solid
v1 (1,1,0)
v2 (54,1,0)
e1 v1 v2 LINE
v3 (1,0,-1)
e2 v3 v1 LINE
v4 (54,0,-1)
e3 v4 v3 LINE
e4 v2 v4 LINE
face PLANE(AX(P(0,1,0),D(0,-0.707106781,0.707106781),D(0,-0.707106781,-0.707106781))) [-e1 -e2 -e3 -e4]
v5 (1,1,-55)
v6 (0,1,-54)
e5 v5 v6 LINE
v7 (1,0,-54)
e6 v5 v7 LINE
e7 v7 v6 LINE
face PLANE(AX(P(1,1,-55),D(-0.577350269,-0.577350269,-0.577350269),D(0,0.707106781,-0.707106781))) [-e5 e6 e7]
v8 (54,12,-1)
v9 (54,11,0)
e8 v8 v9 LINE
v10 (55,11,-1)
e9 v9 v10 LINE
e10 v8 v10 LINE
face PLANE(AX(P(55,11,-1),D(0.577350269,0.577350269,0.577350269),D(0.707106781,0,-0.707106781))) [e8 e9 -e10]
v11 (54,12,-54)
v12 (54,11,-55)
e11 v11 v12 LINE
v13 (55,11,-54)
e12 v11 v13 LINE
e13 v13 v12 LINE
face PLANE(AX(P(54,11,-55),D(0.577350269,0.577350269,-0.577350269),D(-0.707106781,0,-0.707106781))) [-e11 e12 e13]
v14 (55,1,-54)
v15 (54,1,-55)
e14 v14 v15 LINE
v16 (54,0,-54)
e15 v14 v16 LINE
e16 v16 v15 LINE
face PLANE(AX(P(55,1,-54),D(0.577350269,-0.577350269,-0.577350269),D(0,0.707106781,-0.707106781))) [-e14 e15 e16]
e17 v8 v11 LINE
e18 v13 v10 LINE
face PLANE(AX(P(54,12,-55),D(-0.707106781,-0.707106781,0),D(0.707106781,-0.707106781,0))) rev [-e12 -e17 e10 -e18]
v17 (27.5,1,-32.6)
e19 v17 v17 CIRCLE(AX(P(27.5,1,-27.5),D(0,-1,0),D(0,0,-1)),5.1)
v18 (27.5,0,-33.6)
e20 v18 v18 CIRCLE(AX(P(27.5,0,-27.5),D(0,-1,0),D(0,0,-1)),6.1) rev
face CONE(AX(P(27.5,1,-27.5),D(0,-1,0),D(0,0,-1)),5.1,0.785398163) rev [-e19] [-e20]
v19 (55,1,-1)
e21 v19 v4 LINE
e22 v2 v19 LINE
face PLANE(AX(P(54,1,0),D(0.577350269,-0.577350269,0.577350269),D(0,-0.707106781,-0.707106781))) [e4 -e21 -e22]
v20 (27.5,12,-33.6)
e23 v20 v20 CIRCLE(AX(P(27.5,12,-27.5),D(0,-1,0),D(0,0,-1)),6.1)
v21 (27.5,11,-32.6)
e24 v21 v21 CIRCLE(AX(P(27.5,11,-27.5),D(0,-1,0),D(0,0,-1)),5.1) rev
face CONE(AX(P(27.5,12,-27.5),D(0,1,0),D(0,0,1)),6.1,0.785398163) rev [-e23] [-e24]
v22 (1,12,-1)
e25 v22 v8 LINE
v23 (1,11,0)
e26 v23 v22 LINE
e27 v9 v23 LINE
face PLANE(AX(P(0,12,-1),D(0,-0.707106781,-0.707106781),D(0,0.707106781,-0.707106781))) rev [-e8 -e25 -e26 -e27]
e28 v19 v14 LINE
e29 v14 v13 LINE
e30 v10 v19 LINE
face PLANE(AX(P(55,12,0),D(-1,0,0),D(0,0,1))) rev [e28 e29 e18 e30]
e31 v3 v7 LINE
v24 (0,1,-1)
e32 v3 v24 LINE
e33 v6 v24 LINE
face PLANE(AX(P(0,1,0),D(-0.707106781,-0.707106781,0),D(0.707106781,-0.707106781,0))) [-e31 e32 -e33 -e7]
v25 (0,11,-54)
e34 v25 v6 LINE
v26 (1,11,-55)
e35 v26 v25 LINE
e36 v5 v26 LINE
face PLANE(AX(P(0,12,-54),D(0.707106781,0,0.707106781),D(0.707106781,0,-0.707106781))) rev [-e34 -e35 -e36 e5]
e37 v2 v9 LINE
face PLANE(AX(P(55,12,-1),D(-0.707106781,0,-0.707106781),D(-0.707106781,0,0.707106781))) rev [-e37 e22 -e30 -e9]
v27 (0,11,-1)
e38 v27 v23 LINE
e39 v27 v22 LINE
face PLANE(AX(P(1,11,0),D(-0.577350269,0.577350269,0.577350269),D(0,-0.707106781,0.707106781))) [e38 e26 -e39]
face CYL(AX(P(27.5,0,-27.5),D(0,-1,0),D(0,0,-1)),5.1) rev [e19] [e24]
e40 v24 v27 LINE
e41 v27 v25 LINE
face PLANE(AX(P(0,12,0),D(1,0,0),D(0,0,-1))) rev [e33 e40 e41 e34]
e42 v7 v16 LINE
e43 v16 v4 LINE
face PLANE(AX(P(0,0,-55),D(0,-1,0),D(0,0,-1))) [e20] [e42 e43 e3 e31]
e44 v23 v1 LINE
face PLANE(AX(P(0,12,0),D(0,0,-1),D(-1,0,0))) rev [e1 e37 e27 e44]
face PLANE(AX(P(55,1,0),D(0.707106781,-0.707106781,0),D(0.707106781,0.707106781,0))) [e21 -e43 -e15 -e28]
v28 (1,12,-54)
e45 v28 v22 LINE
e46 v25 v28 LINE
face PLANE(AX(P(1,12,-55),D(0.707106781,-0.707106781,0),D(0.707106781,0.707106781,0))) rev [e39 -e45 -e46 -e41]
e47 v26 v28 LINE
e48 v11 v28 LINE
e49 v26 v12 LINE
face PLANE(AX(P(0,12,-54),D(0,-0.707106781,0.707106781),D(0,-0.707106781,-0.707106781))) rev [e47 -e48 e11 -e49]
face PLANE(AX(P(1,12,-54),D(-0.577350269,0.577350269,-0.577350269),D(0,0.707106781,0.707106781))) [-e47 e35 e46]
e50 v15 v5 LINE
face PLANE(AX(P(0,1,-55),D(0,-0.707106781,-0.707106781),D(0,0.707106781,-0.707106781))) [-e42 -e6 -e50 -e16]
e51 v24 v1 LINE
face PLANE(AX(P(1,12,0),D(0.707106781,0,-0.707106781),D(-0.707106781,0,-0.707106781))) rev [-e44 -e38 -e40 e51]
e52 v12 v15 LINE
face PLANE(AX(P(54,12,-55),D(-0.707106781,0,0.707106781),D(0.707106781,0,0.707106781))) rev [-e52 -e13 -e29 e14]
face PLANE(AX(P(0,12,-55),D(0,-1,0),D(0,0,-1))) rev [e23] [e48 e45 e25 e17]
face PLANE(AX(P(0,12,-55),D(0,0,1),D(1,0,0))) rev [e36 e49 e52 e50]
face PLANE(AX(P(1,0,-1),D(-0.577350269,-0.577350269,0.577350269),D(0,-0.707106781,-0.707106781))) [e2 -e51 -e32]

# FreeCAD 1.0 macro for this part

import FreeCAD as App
import Part
import Sketcher
Q = App.Units.Quantity


def add_polygon(sketch, points):
    """Adds a closed chain of lines whose ends are joined by coincident constraints."""
    first, n = sketch.GeometryCount, len(points)
    for a, b in zip(points, points[1:] + points[:1]):
        sketch.addGeometry(Part.LineSegment(App.Vector(*a, 0), App.Vector(*b, 0)), False)
    for i in range(n):
        sketch.addConstraint(Sketcher.Constraint("Coincident", first + i, 2, first + (i + 1) % n, 1))

doc = App.newDocument("Part")
params = doc.addObject("Spreadsheet::Sheet", "Params")
for row, (alias, value) in enumerate([
    ("sketch1_width", "55 mm"),
    ("pad1_length", "12 mm"),
    ("sketch2_diameter", "10.2 mm"),
    ("hole_diameter", "10.2 mm"),
    ("chamfer_size", "1 mm"),
], start=1):
    params.set(f"A{row}", alias)
    params.set(f"B{row}", "=" + value)
    params.setAlias(f"B{row}", alias)

body = doc.addObject("PartDesign::Body", "Body")

# Sketch on XZ plane
sketch1 = body.newObject("Sketcher::SketchObject", "Sketch")
sketch1.AttachmentSupport = (doc.getObject("XZ_Plane"), [""])
sketch1.MapMode = "FlatFace"
add_polygon(sketch1, [(0, -55), (0, 0), (55, 0), (55, -55)])  # lines 0-3
sketch1.addConstraint([
    Sketcher.Constraint("Vertical", 0),
    Sketcher.Constraint("Horizontal", 1),
    Sketcher.Constraint("Vertical", 2),
    Sketcher.Constraint("Horizontal", 3),
    Sketcher.Constraint("Coincident", 0, 2, -1, 1),
    Sketcher.Constraint("Equal", 3, 0),
    Sketcher.Constraint("DistanceX", 1, 1, 1, 2, Q("55 mm")),
])
sketch1.setExpression("Constraints[10]", "Params.sketch1_width")
pad1 = body.newObject("PartDesign::Pad", "Pad")
pad1.Profile = sketch1
pad1.setExpression("Length", "Params.pad1_length")
pad1.Reversed = True

# Sketch on XZ plane
sketch2 = body.newObject("Sketcher::SketchObject", "Sketch001")
sketch2.AttachmentSupport = (doc.getObject("XZ_Plane"), [""])
sketch2.MapMode = "FlatFace"
sketch2.addGeometry(Part.Circle(App.Vector(28, -28, 0), App.Vector(0, 0, 1), 5), False)
sketch2.addConstraint([
    Sketcher.Constraint("Diameter", 0, Q("10.2 mm")),
    Sketcher.Constraint("DistanceX", -1, 1, 0, 3, Q("27.5 mm")),
    Sketcher.Constraint("DistanceY", 0, 3, -1, 1, Q("27.5 mm")),
])
sketch2.setExpression("Constraints[0]", "Params.sketch2_diameter")
doc.recompute()
hole = body.newObject("PartDesign::Hole", "Hole")
hole.Profile = sketch2
hole.ThreadType = "None"
hole.setExpression("Diameter", "Params.hole_diameter")
hole.DepthType = "ThroughAll"
doc.recompute()

chamfer = body.newObject("PartDesign::Chamfer", "Chamfer")
chamfer.Base = (hole, ["Edge1"])
chamfer.UseAllEdges = True
chamfer.setExpression("Size", "Params.chamfer_size")

doc.recompute()
